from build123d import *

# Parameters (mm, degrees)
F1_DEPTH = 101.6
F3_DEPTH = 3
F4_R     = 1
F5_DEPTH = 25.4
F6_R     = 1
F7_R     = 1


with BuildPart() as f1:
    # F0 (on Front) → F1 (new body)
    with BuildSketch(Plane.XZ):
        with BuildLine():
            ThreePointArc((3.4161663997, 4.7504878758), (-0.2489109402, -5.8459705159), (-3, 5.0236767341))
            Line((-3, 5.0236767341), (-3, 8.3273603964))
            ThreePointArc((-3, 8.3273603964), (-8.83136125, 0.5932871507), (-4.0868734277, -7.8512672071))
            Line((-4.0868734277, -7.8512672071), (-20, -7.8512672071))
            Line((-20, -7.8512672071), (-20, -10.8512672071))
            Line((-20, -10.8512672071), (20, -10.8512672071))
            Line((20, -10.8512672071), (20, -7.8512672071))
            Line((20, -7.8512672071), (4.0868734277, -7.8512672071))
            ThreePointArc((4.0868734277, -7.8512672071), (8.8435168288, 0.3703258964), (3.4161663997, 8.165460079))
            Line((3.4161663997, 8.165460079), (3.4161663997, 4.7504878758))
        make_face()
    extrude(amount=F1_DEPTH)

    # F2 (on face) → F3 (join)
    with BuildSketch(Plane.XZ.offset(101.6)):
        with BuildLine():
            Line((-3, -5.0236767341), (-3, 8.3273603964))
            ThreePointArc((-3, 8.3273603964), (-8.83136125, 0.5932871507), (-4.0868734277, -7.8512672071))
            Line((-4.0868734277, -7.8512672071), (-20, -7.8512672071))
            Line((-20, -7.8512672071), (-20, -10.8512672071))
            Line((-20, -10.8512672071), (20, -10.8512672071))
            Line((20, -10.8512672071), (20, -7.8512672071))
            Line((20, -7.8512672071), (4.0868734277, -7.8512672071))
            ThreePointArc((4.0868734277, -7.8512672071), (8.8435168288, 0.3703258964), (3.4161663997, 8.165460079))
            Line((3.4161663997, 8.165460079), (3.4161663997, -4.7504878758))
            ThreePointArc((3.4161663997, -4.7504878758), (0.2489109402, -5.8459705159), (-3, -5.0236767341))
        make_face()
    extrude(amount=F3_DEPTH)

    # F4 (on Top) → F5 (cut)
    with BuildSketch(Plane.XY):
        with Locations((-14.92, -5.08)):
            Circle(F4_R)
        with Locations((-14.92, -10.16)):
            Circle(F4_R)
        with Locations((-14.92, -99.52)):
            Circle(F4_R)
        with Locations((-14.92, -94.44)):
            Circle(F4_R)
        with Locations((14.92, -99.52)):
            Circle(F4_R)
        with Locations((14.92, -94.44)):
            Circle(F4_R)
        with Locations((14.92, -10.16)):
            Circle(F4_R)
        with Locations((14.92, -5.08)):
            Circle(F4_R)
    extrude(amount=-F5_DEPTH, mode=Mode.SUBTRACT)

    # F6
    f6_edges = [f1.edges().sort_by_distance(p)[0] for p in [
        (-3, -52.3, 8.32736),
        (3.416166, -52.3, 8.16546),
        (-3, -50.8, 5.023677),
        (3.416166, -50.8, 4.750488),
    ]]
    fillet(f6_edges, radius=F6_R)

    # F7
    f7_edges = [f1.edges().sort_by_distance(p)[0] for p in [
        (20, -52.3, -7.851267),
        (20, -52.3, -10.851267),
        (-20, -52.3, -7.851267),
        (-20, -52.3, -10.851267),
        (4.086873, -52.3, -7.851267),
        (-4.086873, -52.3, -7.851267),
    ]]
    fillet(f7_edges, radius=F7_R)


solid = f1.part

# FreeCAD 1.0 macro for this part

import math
import FreeCAD as App
import Part
import Sketcher


def edges_at(feature, points):
    """Names of the edges that pass closest to the given points."""
    edges = feature.Shape.Edges
    near = lambda p: min(range(len(edges)), key=lambda i: edges[i].distToShape(Part.Vertex(*p))[0])
    return sorted({f"Edge{near(p) + 1}" for p in points})

doc = App.newDocument("Part")
params = doc.addObject("Spreadsheet::Sheet", "Params")
for row, (alias, value) in enumerate([
    ("sketch1_width", "40 mm"),
    ("sketch1_height", "3 mm"),
    ("pad1_length", "101.6 mm"),
    ("sketch2_width", "40 mm"),
    ("sketch2_height", "3 mm"),
    ("pad2_length", "3 mm"),
    ("sketch3_diameter", "2 mm"),
    ("pocket1_length", "25.4 mm"),
    ("fillet_radius", "1 mm"),
    ("fillet2_radius", "1 mm"),
], start=1):
    params.set(f"A{row}", alias)
    params.set(f"B{row}", "=" + value)
    params.setAlias(f"B{row}", alias)

body = doc.addObject("PartDesign::Body", "Body")

# Sketch on XZ plane
sketch1 = body.newObject("Sketcher::SketchObject", "Sketch")
sketch1.AttachmentSupport = (doc.getObject("XZ_Plane"), [""])
sketch1.MapMode = "FlatFace"
sketch1.addGeometry([
    Part.ArcOfCircle(Part.Circle(App.Vector(0, 0, 0), App.Vector(0, 0, 1), 5.851267), math.radians(120.844474), math.radians(414.279368)),  # 0
    Part.LineSegment(App.Vector(-3, 5.023677, 0), App.Vector(-3, 8.32736, 0)),  # 1
    Part.ArcOfCircle(Part.Circle(App.Vector(0, 0, 0), App.Vector(0, 0, 1), 8.851267), math.radians(109.811973), math.radians(242.501364)),  # 2
    Part.LineSegment(App.Vector(-4.086873, -7.851267, 0), App.Vector(-20, -7.851267, 0)),  # 3
    Part.LineSegment(App.Vector(-20, -7.851267, 0), App.Vector(-20, -10.851267, 0)),  # 4
    Part.LineSegment(App.Vector(-20, -10.851267, 0), App.Vector(20, -10.851267, 0)),  # 5
    Part.LineSegment(App.Vector(20, -10.851267, 0), App.Vector(20, -7.851267, 0)),  # 6
    Part.LineSegment(App.Vector(20, -7.851267, 0), App.Vector(4.086873, -7.851267, 0)),  # 7
    Part.ArcOfCircle(Part.Circle(App.Vector(0, 0, 0), App.Vector(0, 0, 1), 8.851267), math.radians(-62.501364), math.radians(67.297131)),  # 8
    Part.LineSegment(App.Vector(3.416166, 8.16546, 0), App.Vector(3.416166, 4.750488, 0)),  # 9
], False)
sketch1.addConstraint([
    Sketcher.Constraint("Coincident", 0, 1, 1, 1),
    Sketcher.Constraint("Coincident", 1, 2, 2, 1),
    Sketcher.Constraint("Coincident", 2, 2, 3, 1),
    Sketcher.Constraint("Coincident", 3, 2, 4, 1),
    Sketcher.Constraint("Coincident", 4, 2, 5, 1),
    Sketcher.Constraint("Coincident", 5, 2, 6, 1),
    Sketcher.Constraint("Coincident", 6, 2, 7, 1),
    Sketcher.Constraint("Coincident", 7, 2, 8, 1),
    Sketcher.Constraint("Coincident", 8, 2, 9, 1),
    Sketcher.Constraint("Coincident", 9, 2, 0, 2),
    Sketcher.Constraint("Vertical", 1),
    Sketcher.Constraint("Horizontal", 3),
    Sketcher.Constraint("Vertical", 4),
    Sketcher.Constraint("Horizontal", 5),
    Sketcher.Constraint("Vertical", 6),
    Sketcher.Constraint("Horizontal", 7),
    Sketcher.Constraint("Vertical", 9),
    Sketcher.Constraint("Coincident", 0, 3, -1, 1),
    Sketcher.Constraint("Coincident", 2, 3, -1, 1),
    Sketcher.Constraint("Coincident", 8, 3, -1, 1),
    Sketcher.Constraint("Equal", 2, 8),
    Sketcher.Constraint("Symmetric", 3, 2, 6, 2, -2),
    Sketcher.Constraint("DistanceX", 5, 1, 5, 2, 40.0),
    Sketcher.Constraint("DistanceY", 4, 2, 4, 1, 3.0),
    Sketcher.Constraint("DistanceX", 0, 1, -1, 1, 3.0),
    Sketcher.Constraint("Radius", 0, 5.851267),
    Sketcher.Constraint("Radius", 2, 8.851267),
    Sketcher.Constraint("DistanceY", 8, 2, 1, 2, 0.1619),
    Sketcher.Constraint("DistanceX", 3, 2, 3, 1, 15.913127),
])
sketch1.setExpression("Constraints[22]", "Params.sketch1_width")
sketch1.setExpression("Constraints[23]", "Params.sketch1_height")
pad1 = body.newObject("PartDesign::Pad", "Pad")
pad1.Profile = sketch1
pad1.setExpression("Length", "Params.pad1_length")

# Sketch on XZ plane
sketch2 = body.newObject("Sketcher::SketchObject", "Sketch001")
sketch2.AttachmentSupport = (doc.getObject("XZ_Plane"), [""])
sketch2.MapMode = "FlatFace"
sketch2.AttachmentOffset = App.Placement(App.Vector(0, 0, 101.6), App.Rotation())
sketch2.addGeometry([
    Part.LineSegment(App.Vector(-3, -5.023677, 0), App.Vector(-3, 8.32736, 0)),  # 0
    Part.ArcOfCircle(Part.Circle(App.Vector(0, 0, 0), App.Vector(0, 0, 1), 8.851267), math.radians(109.811973), math.radians(242.501364)),  # 1
    Part.LineSegment(App.Vector(-4.086873, -7.851267, 0), App.Vector(-20, -7.851267, 0)),  # 2
    Part.LineSegment(App.Vector(-20, -7.851267, 0), App.Vector(-20, -10.851267, 0)),  # 3
    Part.LineSegment(App.Vector(-20, -10.851267, 0), App.Vector(20, -10.851267, 0)),  # 4
    Part.LineSegment(App.Vector(20, -10.851267, 0), App.Vector(20, -7.851267, 0)),  # 5
    Part.LineSegment(App.Vector(20, -7.851267, 0), App.Vector(4.086873, -7.851267, 0)),  # 6
    Part.ArcOfCircle(Part.Circle(App.Vector(0, 0, 0), App.Vector(0, 0, 1), 8.851267), math.radians(-62.501364), math.radians(67.297131)),  # 7
    Part.LineSegment(App.Vector(3.416166, 8.16546, 0), App.Vector(3.416166, -4.750488, 0)),  # 8
    Part.ArcOfCircle(Part.Circle(App.Vector(0, 0, 0), App.Vector(0, 0, 1), 5.851267), math.radians(-120.844474), math.radians(-54.279368)),  # 9
], False)
sketch2.addConstraint([
    Sketcher.Constraint("Coincident", 0, 2, 1, 1),
    Sketcher.Constraint("Coincident", 1, 2, 2, 1),
    Sketcher.Constraint("Coincident", 2, 2, 3, 1),
    Sketcher.Constraint("Coincident", 3, 2, 4, 1),
    Sketcher.Constraint("Coincident", 4, 2, 5, 1),
    Sketcher.Constraint("Coincident", 5, 2, 6, 1),
    Sketcher.Constraint("Coincident", 6, 2, 7, 1),
    Sketcher.Constraint("Coincident", 7, 2, 8, 1),
    Sketcher.Constraint("Coincident", 8, 2, 9, 2),
    Sketcher.Constraint("Coincident", 9, 1, 0, 1),
    Sketcher.Constraint("Vertical", 0),
    Sketcher.Constraint("Horizontal", 2),
    Sketcher.Constraint("Vertical", 3),
    Sketcher.Constraint("Horizontal", 4),
    Sketcher.Constraint("Vertical", 5),
    Sketcher.Constraint("Horizontal", 6),
    Sketcher.Constraint("Vertical", 8),
    Sketcher.Constraint("Coincident", 1, 3, -1, 1),
    Sketcher.Constraint("Coincident", 7, 3, -1, 1),
    Sketcher.Constraint("Coincident", 9, 3, -1, 1),
    Sketcher.Constraint("Equal", 1, 7),
    Sketcher.Constraint("Symmetric", 2, 2, 5, 2, -2),
    Sketcher.Constraint("DistanceX", 4, 1, 4, 2, 40.0),
    Sketcher.Constraint("DistanceY", 3, 2, 3, 1, 3.0),
    Sketcher.Constraint("DistanceX", 0, 2, -1, 1, 3.0),
    Sketcher.Constraint("Radius", 1, 8.851267),
    Sketcher.Constraint("Radius", 9, 5.851267),
    Sketcher.Constraint("DistanceY", 7, 2, 0, 2, 0.1619),
    Sketcher.Constraint("DistanceX", 2, 2, 2, 1, 15.913127),
])
sketch2.setExpression("Constraints[22]", "Params.sketch2_width")
sketch2.setExpression("Constraints[23]", "Params.sketch2_height")
pad2 = body.newObject("PartDesign::Pad", "Pad001")
pad2.Profile = sketch2
pad2.setExpression("Length", "Params.pad2_length")

# Sketch on XY plane
sketch3 = body.newObject("Sketcher::SketchObject", "Sketch002")
sketch3.AttachmentSupport = (doc.getObject("XY_Plane"), [""])
sketch3.MapMode = "FlatFace"
sketch3.addGeometry([
    Part.Circle(App.Vector(-14.92, -5.08, 0), App.Vector(0, 0, 1), 1),  # 0
    Part.Circle(App.Vector(-14.92, -10.16, 0), App.Vector(0, 0, 1), 1),  # 1
    Part.Circle(App.Vector(-14.92, -99.52, 0), App.Vector(0, 0, 1), 1),  # 2
    Part.Circle(App.Vector(-14.92, -94.44, 0), App.Vector(0, 0, 1), 1),  # 3
    Part.Circle(App.Vector(14.92, -99.52, 0), App.Vector(0, 0, 1), 1),  # 4
    Part.Circle(App.Vector(14.92, -94.44, 0), App.Vector(0, 0, 1), 1),  # 5
    Part.Circle(App.Vector(14.92, -10.16, 0), App.Vector(0, 0, 1), 1),  # 6
    Part.Circle(App.Vector(14.92, -5.08, 0), App.Vector(0, 0, 1), 1),  # 7
], False)
sketch3.addConstraint([
    Sketcher.Constraint("Equal", 0, 1),
    Sketcher.Constraint("Equal", 1, 2),
    Sketcher.Constraint("Equal", 2, 3),
    Sketcher.Constraint("Equal", 3, 4),
    Sketcher.Constraint("Equal", 4, 5),
    Sketcher.Constraint("Equal", 5, 6),
    Sketcher.Constraint("Equal", 6, 7),
    Sketcher.Constraint("Symmetric", 2, 3, 4, 3, -2),
    Sketcher.Constraint("Symmetric", 3, 3, 5, 3, -2),
    Sketcher.Constraint("Symmetric", 1, 3, 6, 3, -2),
    Sketcher.Constraint("Symmetric", 0, 3, 7, 3, -2),
    Sketcher.Constraint("Vertical", 0, 3, 1, 3),
    Sketcher.Constraint("Vertical", 1, 3, 2, 3),
    Sketcher.Constraint("Vertical", 2, 3, 3, 3),
    Sketcher.Constraint("Diameter", 0, 2.0),
    Sketcher.Constraint("DistanceX", 0, 3, -1, 1, 14.92),
    Sketcher.Constraint("DistanceY", 0, 3, -1, 1, 5.08),
    Sketcher.Constraint("DistanceY", 1, 3, -1, 1, 10.16),
    Sketcher.Constraint("DistanceY", 2, 3, -1, 1, 99.52),
    Sketcher.Constraint("DistanceY", 3, 3, -1, 1, 94.44),
])
sketch3.setExpression("Constraints[14]", "Params.sketch3_diameter")
pocket1 = body.newObject("PartDesign::Pocket", "Pocket")
pocket1.Profile = sketch3
pocket1.setExpression("Length", "Params.pocket1_length")
doc.recompute()

fillet = body.newObject("PartDesign::Fillet", "Fillet")
fillet.Base = (pocket1, edges_at(pocket1, [
    (-3, -52.3, 8.327),
    (3.416, -52.3, 8.165),
    (-3, -50.8, 5.024),
    (3.416, -50.8, 4.75),
]))
fillet.setExpression("Radius", "Params.fillet_radius")
doc.recompute()

fillet2 = body.newObject("PartDesign::Fillet", "Fillet001")
fillet2.Base = (fillet, edges_at(fillet, [
    (20, -52.3, -7.851),
    (20, -52.3, -10.851),
    (-20, -52.3, -7.851),
    (-20, -52.3, -10.851),
    (4.087, -52.3, -7.851),
    (-4.087, -52.3, -7.851),
]))
fillet2.setExpression("Radius", "Params.fillet2_radius")

doc.recompute()
